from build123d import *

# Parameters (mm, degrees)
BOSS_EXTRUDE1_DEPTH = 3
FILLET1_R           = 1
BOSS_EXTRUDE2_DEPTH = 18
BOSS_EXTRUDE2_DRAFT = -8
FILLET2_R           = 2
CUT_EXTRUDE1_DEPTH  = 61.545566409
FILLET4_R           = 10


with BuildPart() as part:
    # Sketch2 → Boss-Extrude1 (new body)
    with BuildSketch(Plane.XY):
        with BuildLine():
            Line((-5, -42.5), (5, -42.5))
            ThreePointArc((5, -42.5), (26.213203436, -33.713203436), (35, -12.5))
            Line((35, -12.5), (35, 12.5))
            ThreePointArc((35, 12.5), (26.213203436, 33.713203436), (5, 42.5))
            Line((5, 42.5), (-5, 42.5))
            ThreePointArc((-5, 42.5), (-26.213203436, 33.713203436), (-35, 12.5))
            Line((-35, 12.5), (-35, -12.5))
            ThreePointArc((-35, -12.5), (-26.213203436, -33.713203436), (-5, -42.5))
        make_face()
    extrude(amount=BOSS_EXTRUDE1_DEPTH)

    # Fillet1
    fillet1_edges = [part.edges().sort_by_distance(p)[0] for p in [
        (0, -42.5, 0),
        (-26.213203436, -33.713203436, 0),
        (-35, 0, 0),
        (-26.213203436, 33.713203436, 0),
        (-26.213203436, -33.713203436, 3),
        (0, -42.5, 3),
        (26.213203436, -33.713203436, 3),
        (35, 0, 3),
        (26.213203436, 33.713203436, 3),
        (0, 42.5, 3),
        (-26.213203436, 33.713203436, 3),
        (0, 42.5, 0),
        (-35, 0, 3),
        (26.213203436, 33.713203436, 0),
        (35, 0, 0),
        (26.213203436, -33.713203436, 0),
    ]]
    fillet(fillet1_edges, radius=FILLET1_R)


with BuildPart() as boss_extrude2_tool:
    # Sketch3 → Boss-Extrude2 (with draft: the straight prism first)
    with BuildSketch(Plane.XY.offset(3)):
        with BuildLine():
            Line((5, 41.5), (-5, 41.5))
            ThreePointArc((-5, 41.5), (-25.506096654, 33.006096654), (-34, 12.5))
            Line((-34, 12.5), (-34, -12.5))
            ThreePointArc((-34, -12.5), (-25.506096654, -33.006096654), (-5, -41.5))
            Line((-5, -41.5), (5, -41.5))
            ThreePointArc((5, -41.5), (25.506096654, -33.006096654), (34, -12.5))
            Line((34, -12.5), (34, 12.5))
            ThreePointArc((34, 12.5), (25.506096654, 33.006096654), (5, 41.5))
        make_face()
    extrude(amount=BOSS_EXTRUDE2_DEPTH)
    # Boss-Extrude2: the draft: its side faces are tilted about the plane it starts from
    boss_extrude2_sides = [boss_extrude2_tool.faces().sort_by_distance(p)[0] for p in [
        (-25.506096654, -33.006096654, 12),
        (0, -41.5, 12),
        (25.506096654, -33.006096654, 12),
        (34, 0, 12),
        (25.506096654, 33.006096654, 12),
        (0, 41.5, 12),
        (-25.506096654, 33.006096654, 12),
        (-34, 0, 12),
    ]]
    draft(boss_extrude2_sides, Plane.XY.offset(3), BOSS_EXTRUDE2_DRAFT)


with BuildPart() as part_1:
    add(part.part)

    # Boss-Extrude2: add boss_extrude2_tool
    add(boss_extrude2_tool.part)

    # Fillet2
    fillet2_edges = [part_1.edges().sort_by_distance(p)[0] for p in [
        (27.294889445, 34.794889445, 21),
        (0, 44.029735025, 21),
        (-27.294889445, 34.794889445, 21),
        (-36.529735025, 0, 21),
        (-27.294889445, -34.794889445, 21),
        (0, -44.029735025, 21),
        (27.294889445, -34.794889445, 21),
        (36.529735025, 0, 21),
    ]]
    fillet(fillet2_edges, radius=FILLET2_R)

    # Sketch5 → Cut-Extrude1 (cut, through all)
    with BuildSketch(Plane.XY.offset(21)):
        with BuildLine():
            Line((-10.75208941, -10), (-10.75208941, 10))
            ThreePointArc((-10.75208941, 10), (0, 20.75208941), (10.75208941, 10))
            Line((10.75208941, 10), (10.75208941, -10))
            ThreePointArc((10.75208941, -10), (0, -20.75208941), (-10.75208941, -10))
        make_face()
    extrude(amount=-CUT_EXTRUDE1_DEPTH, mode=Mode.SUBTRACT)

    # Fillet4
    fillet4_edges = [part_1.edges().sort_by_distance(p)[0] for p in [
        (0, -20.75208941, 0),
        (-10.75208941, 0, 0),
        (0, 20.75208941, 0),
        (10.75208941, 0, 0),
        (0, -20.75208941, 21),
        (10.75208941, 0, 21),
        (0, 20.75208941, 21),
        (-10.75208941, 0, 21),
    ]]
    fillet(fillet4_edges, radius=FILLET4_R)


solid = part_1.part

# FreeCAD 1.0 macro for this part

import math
import FreeCAD as App
import Part
import Sketcher
Q = App.Units.Quantity


def edges_at(feature, points):
    """Names of the edges that pass closest to the given points."""
    edges = feature.Shape.Edges
    near = lambda p: min(range(len(edges)), key=lambda i: edges[i].distToShape(Part.Vertex(*p))[0])
    return sorted({f"Edge{near(p) + 1}" for p in points})


def faces_at(feature, points):
    """Names of the faces that lie closest to the given points."""
    faces = feature.Shape.Faces
    near = lambda p: min(range(len(faces)), key=lambda i: faces[i].distToShape(Part.Vertex(*p))[0])
    return sorted({f"Face{near(p) + 1}" for p in points})

doc = App.newDocument("Part")
body = doc.addObject("PartDesign::Body", "Body")

# Sketch on XY plane
sketch1 = body.newObject("Sketcher::SketchObject", "Sketch")
sketch1.AttachmentSupport = (doc.getObject("XY_Plane"), [""])
sketch1.MapMode = "FlatFace"
sketch1.addGeometry([
    Part.LineSegment(App.Vector(-5, -42, 0), App.Vector(5, -42, 0)),  # 0
    Part.ArcOfCircle(Part.Circle(App.Vector(5, -13, 0), App.Vector(0, 0, 1), 30), math.radians(-90), math.radians(0)),  # 1
    Part.LineSegment(App.Vector(35, -12, 0), App.Vector(35, 12, 0)),  # 2
    Part.ArcOfCircle(Part.Circle(App.Vector(5, 13, 0), App.Vector(0, 0, 1), 30), math.radians(0), math.radians(90)),  # 3
    Part.LineSegment(App.Vector(5, 42, 0), App.Vector(-5, 42, 0)),  # 4
    Part.ArcOfCircle(Part.Circle(App.Vector(-5, 13, 0), App.Vector(0, 0, 1), 30), math.radians(90), math.radians(180)),  # 5
    Part.LineSegment(App.Vector(-35, 12, 0), App.Vector(-35, -12, 0)),  # 6
    Part.ArcOfCircle(Part.Circle(App.Vector(-5, -13, 0), App.Vector(0, 0, 1), 30), math.radians(180), math.radians(270)),  # 7
], False)
sketch1.addConstraint([
    Sketcher.Constraint("Tangent", 0, 2, 1, 1),
    Sketcher.Constraint("Tangent", 1, 2, 2, 1),
    Sketcher.Constraint("Tangent", 2, 2, 3, 1),
    Sketcher.Constraint("Tangent", 3, 2, 4, 1),
    Sketcher.Constraint("Tangent", 4, 2, 5, 1),
    Sketcher.Constraint("Tangent", 5, 2, 6, 1),
    Sketcher.Constraint("Tangent", 6, 2, 7, 1),
    Sketcher.Constraint("Tangent", 7, 2, 0, 1),
    Sketcher.Constraint("Horizontal", 0),
    Sketcher.Constraint("Vertical", 2),
    Sketcher.Constraint("Horizontal", 4),
    Sketcher.Constraint("Vertical", 6),
    Sketcher.Constraint("Equal", 1, 3),
    Sketcher.Constraint("Equal", 3, 5),
    Sketcher.Constraint("Equal", 5, 7),
    Sketcher.Constraint("Symmetric", 1, 3, 5, 3, -1, 1),
    Sketcher.Constraint("Radius", 1, Q("30 mm")),
    Sketcher.Constraint("DistanceX", 0, 1, 0, 2, Q("10 mm")),
    Sketcher.Constraint("DistanceY", 2, 1, 2, 2, Q("25 mm")),
])
pad1 = body.newObject("PartDesign::Pad", "Pad")
pad1.Profile = sketch1
pad1.Length = 3
doc.recompute()

fillet = body.newObject("PartDesign::Fillet", "Fillet")
fillet.Base = (pad1, edges_at(pad1, [
    (0, -42.5, 0),
    (-26.213, -33.713, 0),
    (-35, 0, 0),
    (-26.213, 33.713, 0),
    (-26.213, -33.713, 3),
    (0, -42.5, 3),
    (26.213, -33.713, 3),
    (35, 0, 3),
    (26.213, 33.713, 3),
    (0, 42.5, 3),
    (-26.213, 33.713, 3),
    (0, 42.5, 0),
    (-35, 0, 3),
    (26.213, 33.713, 0),
    (35, 0, 0),
    (26.213, -33.713, 0),
]))
fillet.Radius = 1
body2 = doc.addObject("PartDesign::Body", "Body001")

# Sketch on XY plane
sketch2 = body2.newObject("Sketcher::SketchObject", "Sketch001")
sketch2.AttachmentSupport = (doc.getObject("XY_Plane001"), [""])
sketch2.MapMode = "FlatFace"
sketch2.AttachmentOffset = App.Placement(App.Vector(0, 0, 3), App.Rotation())
sketch2.addGeometry([
    Part.LineSegment(App.Vector(5, 42, 0), App.Vector(-5, 42, 0)),  # 0
    Part.ArcOfCircle(Part.Circle(App.Vector(-5, 12, 0), App.Vector(0, 0, 1), 29), math.radians(90), math.radians(180)),  # 1
    Part.LineSegment(App.Vector(-34, 12, 0), App.Vector(-34, -12, 0)),  # 2
    Part.ArcOfCircle(Part.Circle(App.Vector(-5, -12, 0), App.Vector(0, 0, 1), 29), math.radians(-180), math.radians(-90)),  # 3
    Part.LineSegment(App.Vector(-5, -42, 0), App.Vector(5, -42, 0)),  # 4
    Part.ArcOfCircle(Part.Circle(App.Vector(5, -12, 0), App.Vector(0, 0, 1), 29), math.radians(-90), math.radians(0)),  # 5
    Part.LineSegment(App.Vector(34, -12, 0), App.Vector(34, 12, 0)),  # 6
    Part.ArcOfCircle(Part.Circle(App.Vector(5, 12, 0), App.Vector(0, 0, 1), 29), math.radians(0), math.radians(90)),  # 7
], False)
sketch2.addConstraint([
    Sketcher.Constraint("Tangent", 0, 2, 1, 1),
    Sketcher.Constraint("Tangent", 1, 2, 2, 1),
    Sketcher.Constraint("Tangent", 2, 2, 3, 1),
    Sketcher.Constraint("Tangent", 3, 2, 4, 1),
    Sketcher.Constraint("Tangent", 4, 2, 5, 1),
    Sketcher.Constraint("Tangent", 5, 2, 6, 1),
    Sketcher.Constraint("Tangent", 6, 2, 7, 1),
    Sketcher.Constraint("Tangent", 7, 2, 0, 1),
    Sketcher.Constraint("Horizontal", 0),
    Sketcher.Constraint("Vertical", 2),
    Sketcher.Constraint("Horizontal", 4),
    Sketcher.Constraint("Vertical", 6),
    Sketcher.Constraint("Equal", 1, 3),
    Sketcher.Constraint("Equal", 3, 5),
    Sketcher.Constraint("Equal", 5, 7),
    Sketcher.Constraint("Symmetric", 1, 3, 5, 3, -1, 1),
    Sketcher.Constraint("Radius", 1, Q("29 mm")),
    Sketcher.Constraint("DistanceX", 0, 2, 0, 1, Q("10 mm")),
    Sketcher.Constraint("DistanceY", 2, 2, 2, 1, Q("25 mm")),
])
pad2 = body2.newObject("PartDesign::Pad", "Pad001")
pad2.Profile = sketch2
pad2.Length = 18
doc.recompute()

datumplane = body2.newObject("PartDesign::Plane", "DatumPlane")
datumplane.AttachmentSupport = (doc.getObject("XY_Plane001"), [""])
datumplane.MapMode = "FlatFace"
datumplane.AttachmentOffset = App.Placement(App.Vector(0, 0, 3), App.Rotation())
draft = body2.newObject("PartDesign::Draft", "Draft")
draft.Base = (pad2, faces_at(pad2, [
    (-25.506, -33.006, 12),
    (0, -41.5, 12),
    (25.506, -33.006, 12),
    (34, 0, 12),
    (25.506, 33.006, 12),
    (0, 41.5, 12),
    (-25.506, 33.006, 12),
    (-34, 0, 12),
]))
draft.NeutralPlane = (datumplane, [""])
draft.Angle = 8
draft.Reversed = True
doc.recompute()

boolean = body.newObject("PartDesign::Boolean", "Boolean")
boolean.Type = "Fuse"
boolean.addObjects([body2])
doc.recompute()

fillet2 = body.newObject("PartDesign::Fillet", "Fillet001")
fillet2.Base = (boolean, edges_at(boolean, [
    (27.295, 34.795, 21),
    (0, 44.03, 21),
    (-27.295, 34.795, 21),
    (-36.53, 0, 21),
    (-27.295, -34.795, 21),
    (0, -44.03, 21),
    (27.295, -34.795, 21),
    (36.53, 0, 21),
]))
fillet2.Radius = 2

# Sketch on XY plane
sketch3 = body.newObject("Sketcher::SketchObject", "Sketch002")
sketch3.AttachmentSupport = (doc.getObject("XY_Plane"), [""])
sketch3.MapMode = "FlatFace"
sketch3.AttachmentOffset = App.Placement(App.Vector(0, 0, 21), App.Rotation())
sketch3.addGeometry([
    Part.LineSegment(App.Vector(-11, 10, 0), App.Vector(-11, -10, 0)),
    Part.ArcOfCircle(Part.Circle(App.Vector(0, -10, 0), App.Vector(0, 0, 1), 11), math.radians(180), math.radians(360)),
    Part.LineSegment(App.Vector(11, -10, 0), App.Vector(11, 10, 0)),
    Part.ArcOfCircle(Part.Circle(App.Vector(0, 10, 0), App.Vector(0, 0, 1), 11), math.radians(0), math.radians(180)),
], False)
sketch3.addConstraint([
    Sketcher.Constraint("Tangent", 0, 2, 1, 1),
    Sketcher.Constraint("Tangent", 1, 2, 2, 1),
    Sketcher.Constraint("Tangent", 2, 2, 3, 1),
    Sketcher.Constraint("Tangent", 3, 2, 0, 1),
    Sketcher.Constraint("Vertical", 0),
    Sketcher.Constraint("Vertical", 2),
    Sketcher.Constraint("Symmetric", 1, 3, 3, 3, -1, 1),
    Sketcher.Constraint("DistanceY", 0, 2, 0, 1, Q("20 mm")),
    Sketcher.Constraint("Radius", 1, Q("10.752089 mm")),
])
pocket1 = body.newObject("PartDesign::Pocket", "Pocket")
pocket1.Profile = sketch3
pocket1.Type = "ThroughAll"
doc.recompute()

fillet3 = body.newObject("PartDesign::Fillet", "Fillet002")
fillet3.Base = (pocket1, edges_at(pocket1, [
    (0, -20.752, 0),
    (-10.752, 0, 0),
    (0, 20.752, 0),
    (10.752, 0, 0),
    (0, -20.752, 21),
    (10.752, 0, 21),
    (0, 20.752, 21),
    (-10.752, 0, 21),
]))
fillet3.Radius = 10

doc.recompute()
